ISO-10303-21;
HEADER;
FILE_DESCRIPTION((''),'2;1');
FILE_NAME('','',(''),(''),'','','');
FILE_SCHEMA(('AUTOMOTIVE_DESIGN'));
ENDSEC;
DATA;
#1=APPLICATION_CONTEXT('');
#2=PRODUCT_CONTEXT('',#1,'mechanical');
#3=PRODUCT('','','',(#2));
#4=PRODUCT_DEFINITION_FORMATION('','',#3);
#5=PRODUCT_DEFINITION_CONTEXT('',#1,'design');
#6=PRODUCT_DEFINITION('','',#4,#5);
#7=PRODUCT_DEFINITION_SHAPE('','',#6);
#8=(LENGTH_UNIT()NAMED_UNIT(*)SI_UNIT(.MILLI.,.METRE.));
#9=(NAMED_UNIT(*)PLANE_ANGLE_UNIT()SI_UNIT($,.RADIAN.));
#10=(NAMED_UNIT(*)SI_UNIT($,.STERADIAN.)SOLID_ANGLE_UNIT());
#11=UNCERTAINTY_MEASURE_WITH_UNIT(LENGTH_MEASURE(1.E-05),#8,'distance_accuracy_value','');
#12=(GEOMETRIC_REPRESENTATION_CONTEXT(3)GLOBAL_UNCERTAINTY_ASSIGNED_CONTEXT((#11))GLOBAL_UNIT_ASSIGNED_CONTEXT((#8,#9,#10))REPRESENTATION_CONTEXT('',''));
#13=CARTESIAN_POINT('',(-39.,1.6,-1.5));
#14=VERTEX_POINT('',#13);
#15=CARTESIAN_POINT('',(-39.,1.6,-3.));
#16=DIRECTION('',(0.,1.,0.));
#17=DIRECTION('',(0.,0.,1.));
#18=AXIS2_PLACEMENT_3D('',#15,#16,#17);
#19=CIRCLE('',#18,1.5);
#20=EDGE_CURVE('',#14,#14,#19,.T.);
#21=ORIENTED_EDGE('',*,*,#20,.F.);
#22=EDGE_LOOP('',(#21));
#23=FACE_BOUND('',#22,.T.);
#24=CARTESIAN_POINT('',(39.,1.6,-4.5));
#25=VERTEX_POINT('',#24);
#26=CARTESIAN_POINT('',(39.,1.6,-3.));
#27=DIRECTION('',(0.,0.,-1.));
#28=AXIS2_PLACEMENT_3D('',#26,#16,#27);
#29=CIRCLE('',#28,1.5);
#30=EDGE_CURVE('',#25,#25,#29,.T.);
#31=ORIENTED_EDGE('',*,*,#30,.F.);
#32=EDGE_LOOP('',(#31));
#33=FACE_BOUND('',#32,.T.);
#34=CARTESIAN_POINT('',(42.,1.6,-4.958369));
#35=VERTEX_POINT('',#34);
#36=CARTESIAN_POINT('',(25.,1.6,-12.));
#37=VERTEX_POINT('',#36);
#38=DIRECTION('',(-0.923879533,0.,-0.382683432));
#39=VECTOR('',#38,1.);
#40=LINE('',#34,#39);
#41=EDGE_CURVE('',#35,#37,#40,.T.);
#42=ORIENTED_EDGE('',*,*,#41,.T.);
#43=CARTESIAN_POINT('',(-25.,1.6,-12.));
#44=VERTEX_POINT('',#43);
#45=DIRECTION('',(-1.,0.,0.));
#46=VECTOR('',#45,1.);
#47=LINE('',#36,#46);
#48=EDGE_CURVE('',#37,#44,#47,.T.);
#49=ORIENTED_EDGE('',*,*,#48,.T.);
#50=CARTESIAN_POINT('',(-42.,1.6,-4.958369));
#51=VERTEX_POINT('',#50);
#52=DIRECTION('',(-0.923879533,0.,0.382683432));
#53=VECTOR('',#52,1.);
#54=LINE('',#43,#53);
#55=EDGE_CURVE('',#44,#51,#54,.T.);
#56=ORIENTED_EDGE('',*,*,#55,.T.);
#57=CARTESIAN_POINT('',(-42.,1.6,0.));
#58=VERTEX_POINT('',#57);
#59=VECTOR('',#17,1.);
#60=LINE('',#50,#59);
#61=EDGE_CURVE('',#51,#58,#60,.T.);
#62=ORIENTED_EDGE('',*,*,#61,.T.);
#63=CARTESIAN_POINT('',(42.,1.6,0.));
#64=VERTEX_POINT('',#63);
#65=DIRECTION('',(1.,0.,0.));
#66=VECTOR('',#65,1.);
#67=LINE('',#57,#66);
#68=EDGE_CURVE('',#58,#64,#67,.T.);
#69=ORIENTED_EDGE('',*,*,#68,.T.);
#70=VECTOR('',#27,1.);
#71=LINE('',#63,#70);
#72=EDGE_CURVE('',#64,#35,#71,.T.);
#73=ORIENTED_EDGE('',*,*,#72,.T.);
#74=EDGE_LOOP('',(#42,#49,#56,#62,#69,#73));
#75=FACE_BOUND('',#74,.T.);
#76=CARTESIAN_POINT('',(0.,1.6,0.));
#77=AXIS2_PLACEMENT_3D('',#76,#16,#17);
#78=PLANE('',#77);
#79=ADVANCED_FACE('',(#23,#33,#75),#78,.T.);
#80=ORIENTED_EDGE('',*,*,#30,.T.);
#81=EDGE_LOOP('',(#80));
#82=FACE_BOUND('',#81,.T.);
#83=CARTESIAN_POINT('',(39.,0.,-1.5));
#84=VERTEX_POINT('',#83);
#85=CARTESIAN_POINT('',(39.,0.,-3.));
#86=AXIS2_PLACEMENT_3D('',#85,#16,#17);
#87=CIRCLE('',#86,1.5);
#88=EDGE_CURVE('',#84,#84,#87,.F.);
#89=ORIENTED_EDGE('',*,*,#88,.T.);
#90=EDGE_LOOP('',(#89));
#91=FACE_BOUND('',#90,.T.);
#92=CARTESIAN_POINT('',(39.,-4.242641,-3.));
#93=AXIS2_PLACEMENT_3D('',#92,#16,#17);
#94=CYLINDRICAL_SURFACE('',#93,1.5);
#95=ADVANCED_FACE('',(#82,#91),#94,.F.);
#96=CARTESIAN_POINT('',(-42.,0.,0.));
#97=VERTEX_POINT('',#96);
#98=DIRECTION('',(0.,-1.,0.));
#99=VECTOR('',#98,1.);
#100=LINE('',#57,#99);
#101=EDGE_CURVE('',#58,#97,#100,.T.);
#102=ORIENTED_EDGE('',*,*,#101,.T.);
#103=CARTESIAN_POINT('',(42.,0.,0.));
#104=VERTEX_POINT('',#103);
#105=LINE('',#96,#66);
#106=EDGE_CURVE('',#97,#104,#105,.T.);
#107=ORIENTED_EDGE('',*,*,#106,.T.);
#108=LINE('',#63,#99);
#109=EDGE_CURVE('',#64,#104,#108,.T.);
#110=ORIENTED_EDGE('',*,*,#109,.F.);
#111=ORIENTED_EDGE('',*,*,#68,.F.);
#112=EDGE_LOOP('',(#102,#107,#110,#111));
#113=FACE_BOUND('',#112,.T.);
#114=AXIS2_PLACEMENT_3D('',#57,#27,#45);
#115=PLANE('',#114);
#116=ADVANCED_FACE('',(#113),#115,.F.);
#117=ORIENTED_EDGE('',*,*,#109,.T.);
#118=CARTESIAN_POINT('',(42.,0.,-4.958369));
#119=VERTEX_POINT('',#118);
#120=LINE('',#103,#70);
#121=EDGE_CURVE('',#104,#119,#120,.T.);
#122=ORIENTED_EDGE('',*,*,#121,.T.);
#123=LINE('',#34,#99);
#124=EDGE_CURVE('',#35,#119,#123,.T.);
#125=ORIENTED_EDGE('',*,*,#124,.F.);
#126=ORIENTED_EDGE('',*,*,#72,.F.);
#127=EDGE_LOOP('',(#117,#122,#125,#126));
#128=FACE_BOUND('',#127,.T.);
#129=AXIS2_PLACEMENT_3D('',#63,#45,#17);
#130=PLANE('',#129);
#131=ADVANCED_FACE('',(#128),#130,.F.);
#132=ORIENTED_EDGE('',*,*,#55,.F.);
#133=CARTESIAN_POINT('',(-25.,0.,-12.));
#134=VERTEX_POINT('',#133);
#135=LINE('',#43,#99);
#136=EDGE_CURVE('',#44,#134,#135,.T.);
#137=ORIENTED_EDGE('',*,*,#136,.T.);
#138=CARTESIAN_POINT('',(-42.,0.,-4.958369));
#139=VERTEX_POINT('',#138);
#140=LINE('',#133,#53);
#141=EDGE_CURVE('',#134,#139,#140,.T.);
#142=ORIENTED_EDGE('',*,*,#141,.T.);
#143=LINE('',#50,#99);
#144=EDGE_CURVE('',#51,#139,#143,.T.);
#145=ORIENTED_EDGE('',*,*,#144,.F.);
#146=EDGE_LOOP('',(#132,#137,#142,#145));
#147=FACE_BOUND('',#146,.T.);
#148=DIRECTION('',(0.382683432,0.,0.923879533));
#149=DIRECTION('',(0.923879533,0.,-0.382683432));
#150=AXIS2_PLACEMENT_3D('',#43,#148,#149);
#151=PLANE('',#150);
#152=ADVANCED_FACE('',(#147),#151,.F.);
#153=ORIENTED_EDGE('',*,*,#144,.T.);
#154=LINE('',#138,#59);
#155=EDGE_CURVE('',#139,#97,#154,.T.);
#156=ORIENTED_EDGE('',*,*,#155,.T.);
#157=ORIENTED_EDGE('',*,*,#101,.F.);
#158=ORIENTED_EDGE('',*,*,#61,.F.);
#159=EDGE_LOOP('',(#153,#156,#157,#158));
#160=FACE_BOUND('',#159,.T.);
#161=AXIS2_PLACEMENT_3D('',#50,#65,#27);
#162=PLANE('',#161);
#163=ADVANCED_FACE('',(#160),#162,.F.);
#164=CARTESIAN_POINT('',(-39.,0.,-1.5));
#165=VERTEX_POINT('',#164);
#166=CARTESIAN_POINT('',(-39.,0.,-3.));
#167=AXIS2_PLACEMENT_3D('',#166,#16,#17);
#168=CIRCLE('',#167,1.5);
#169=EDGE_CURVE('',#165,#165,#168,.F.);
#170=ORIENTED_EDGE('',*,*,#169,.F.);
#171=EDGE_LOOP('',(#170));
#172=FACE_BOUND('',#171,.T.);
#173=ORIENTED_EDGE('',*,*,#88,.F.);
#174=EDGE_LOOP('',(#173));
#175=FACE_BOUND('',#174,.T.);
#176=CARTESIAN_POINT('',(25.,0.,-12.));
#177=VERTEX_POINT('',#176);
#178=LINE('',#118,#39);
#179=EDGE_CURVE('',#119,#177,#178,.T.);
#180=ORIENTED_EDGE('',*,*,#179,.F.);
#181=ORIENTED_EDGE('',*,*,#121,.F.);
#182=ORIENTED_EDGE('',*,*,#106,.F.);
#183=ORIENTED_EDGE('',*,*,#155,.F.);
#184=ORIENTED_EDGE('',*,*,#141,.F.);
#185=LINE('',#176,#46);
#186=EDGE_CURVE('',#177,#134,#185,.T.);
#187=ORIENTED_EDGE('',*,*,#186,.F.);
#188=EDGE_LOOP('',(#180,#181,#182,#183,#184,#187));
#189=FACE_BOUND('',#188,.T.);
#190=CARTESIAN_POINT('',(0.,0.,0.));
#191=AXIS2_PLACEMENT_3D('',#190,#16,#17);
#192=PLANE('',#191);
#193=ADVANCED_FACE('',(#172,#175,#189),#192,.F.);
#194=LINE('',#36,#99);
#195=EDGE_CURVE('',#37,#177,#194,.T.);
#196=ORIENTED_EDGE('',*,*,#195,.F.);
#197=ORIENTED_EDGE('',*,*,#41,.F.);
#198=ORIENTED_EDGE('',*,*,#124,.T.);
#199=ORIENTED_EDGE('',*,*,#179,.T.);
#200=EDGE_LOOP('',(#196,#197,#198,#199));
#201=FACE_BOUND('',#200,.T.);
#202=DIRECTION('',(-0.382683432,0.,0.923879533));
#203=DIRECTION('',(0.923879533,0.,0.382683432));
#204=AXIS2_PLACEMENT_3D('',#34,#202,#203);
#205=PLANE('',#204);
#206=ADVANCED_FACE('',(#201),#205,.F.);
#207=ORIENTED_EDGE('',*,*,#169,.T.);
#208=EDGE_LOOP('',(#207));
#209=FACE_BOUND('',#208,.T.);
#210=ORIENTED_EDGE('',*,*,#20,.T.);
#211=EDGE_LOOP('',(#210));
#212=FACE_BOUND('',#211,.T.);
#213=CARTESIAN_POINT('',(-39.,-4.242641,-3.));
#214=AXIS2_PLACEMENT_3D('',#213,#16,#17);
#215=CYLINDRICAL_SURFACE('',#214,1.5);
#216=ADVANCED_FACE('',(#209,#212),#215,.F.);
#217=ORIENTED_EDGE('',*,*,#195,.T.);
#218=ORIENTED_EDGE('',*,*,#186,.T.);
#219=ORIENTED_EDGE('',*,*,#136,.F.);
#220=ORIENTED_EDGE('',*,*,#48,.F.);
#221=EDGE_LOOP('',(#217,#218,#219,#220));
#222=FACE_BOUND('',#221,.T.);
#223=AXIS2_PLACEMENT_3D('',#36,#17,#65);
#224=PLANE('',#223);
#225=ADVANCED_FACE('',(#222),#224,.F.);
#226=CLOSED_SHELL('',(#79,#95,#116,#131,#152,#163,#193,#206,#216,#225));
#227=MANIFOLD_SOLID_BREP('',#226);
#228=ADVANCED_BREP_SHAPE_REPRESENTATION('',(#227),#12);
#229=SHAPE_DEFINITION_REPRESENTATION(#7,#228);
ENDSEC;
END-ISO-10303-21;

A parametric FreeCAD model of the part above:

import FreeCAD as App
import Part
import Sketcher
Q = App.Units.Quantity


def add_polygon(sketch, points):
    """Adds a closed chain of lines whose ends are joined by coincident constraints."""
    first, n = sketch.GeometryCount, len(points)
    for a, b in zip(points, points[1:] + points[:1]):
        sketch.addGeometry(Part.LineSegment(App.Vector(*a, 0), App.Vector(*b, 0)), False)
    for i in range(n):
        sketch.addConstraint(Sketcher.Constraint("Coincident", first + i, 2, first + (i + 1) % n, 1))

doc = App.newDocument("Part")
body = doc.addObject("PartDesign::Body", "Body")

# Sketch on XZ plane
sketch1 = body.newObject("Sketcher::SketchObject", "Sketch")
sketch1.AttachmentSupport = (doc.getObject("XZ_Plane"), [""])
sketch1.MapMode = "FlatFace"
add_polygon(sketch1, [(-42, 0), (42, 0), (42, -5), (25, -12), (-25, -12), (-42, -5)])  # lines 0-5
sketch1.addConstraint([
    Sketcher.Constraint("Horizontal", 0),
    Sketcher.Constraint("Vertical", 1),
    Sketcher.Constraint("Horizontal", 3),
    Sketcher.Constraint("Vertical", 5),
    Sketcher.Constraint("Symmetric", 0, 2, 5, 2, -1, 1),
    Sketcher.Constraint("Horizontal", 1, 2, 4, 2),
    Sketcher.Constraint("Equal", 2, 4),
    Sketcher.Constraint("DistanceX", 0, 1, 0, 2, 84.0),
    Sketcher.Constraint("DistanceX", 3, 2, 3, 1, 50.0),
    Sketcher.Constraint("DistanceY", 2, 2, -1, 1, 12.0),
    Sketcher.Constraint("Angle", 2, Q("-157.5 deg")),
])
pad1 = body.newObject("PartDesign::Pad", "Pad")
pad1.Profile = sketch1
pad1.Length = 1.6
pad1.Reversed = True

# Sketch on XZ plane
sketch2 = body.newObject("Sketcher::SketchObject", "Sketch001")
sketch2.AttachmentSupport = (doc.getObject("XZ_Plane"), [""])
sketch2.MapMode = "FlatFace"
sketch2.AttachmentOffset = App.Placement(App.Vector(0, 0, -1.6), App.Rotation())
sketch2.addGeometry([
    Part.Circle(App.Vector(-39, -3, 0), App.Vector(0, 0, 1), 1.5),
    Part.Circle(App.Vector(39, -3, 0), App.Vector(0, 0, 1), 1.5),
], False)
sketch2.addConstraint([
    Sketcher.Constraint("Equal", 0, 1),
    Sketcher.Constraint("Symmetric", 0, 3, 1, 3, -2),
    Sketcher.Constraint("Diameter", 0, 3.0),
    Sketcher.Constraint("DistanceX", 0, 3, -1, 1, 39.0),
    Sketcher.Constraint("DistanceY", 0, 3, -1, 1, 3.0),
])
pocket1 = body.newObject("PartDesign::Pocket", "Pocket")
pocket1.Profile = sketch2
pocket1.Length = 1.6
pocket1.Reversed = True

doc.recompute()
